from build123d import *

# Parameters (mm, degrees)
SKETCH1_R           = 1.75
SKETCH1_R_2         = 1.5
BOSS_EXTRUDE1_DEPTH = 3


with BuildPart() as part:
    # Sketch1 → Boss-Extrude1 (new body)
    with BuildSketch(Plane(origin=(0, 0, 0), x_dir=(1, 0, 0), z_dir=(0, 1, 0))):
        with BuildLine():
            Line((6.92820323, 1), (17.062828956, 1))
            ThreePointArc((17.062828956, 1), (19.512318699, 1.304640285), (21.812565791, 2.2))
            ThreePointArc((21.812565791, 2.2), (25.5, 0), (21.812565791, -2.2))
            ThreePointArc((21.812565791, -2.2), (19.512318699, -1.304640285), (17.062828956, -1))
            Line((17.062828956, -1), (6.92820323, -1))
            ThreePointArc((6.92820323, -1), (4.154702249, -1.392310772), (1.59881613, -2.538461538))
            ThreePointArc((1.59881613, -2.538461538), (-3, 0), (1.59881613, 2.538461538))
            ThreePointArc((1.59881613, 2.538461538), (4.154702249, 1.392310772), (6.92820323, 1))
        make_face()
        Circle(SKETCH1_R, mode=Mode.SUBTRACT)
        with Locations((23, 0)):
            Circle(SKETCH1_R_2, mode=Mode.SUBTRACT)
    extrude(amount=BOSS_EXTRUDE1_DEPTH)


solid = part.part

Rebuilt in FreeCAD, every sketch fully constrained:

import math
import FreeCAD as App
import Part
import Sketcher

doc = App.newDocument("Part")
body = doc.addObject("PartDesign::Body", "Body")

# Sketch on XZ plane
sketch1 = body.newObject("Sketcher::SketchObject", "Sketch")
sketch1.AttachmentSupport = (doc.getObject("XZ_Plane"), [""])
sketch1.MapMode = "FlatFace"
sketch1.addGeometry([
    Part.LineSegment(App.Vector(17.1, -1, 0), App.Vector(6.9, -1, 0)),  # 0
    Part.ArcOfCircle(Part.Circle(App.Vector(6.9, -11, 0), App.Vector(0, 0, 1), 10), math.radians(90), math.radians(122)),  # 1
    Part.ArcOfCircle(Part.Circle(App.Vector(0, 0, 0), App.Vector(0, 0, 1), 3), math.radians(58), math.radians(302)),  # 2
    Part.ArcOfCircle(Part.Circle(App.Vector(6.9, 11, 0), App.Vector(0, 0, 1), 10), math.radians(-122), math.radians(-90)),  # 3
    Part.LineSegment(App.Vector(6.9, 1, 0), App.Vector(17.1, 1, 0)),  # 4
    Part.ArcOfCircle(Part.Circle(App.Vector(17.1, 11, 0), App.Vector(0, 0, 1), 10), math.radians(-90), math.radians(-62)),  # 5
    Part.ArcOfCircle(Part.Circle(App.Vector(23, 0, 0), App.Vector(0, 0, 1), 2.5), math.radians(-118), math.radians(118)),  # 6
    Part.ArcOfCircle(Part.Circle(App.Vector(17.1, -11, 0), App.Vector(0, 0, 1), 10), math.radians(62), math.radians(90)),  # 7
    Part.Circle(App.Vector(23, 0, 0), App.Vector(0, 0, 1), 1.5),  # 8
    Part.Circle(App.Vector(0, 0, 0), App.Vector(0, 0, 1), 1.8),  # 9
], False)
sketch1.addConstraint([
    Sketcher.Constraint("Tangent", 0, 2, 1, 1),
    Sketcher.Constraint("Tangent", 1, 2, 2, 2),
    Sketcher.Constraint("Tangent", 2, 1, 3, 1),
    Sketcher.Constraint("Tangent", 3, 2, 4, 1),
    Sketcher.Constraint("Tangent", 4, 2, 5, 1),
    Sketcher.Constraint("Tangent", 5, 2, 6, 2),
    Sketcher.Constraint("Tangent", 6, 1, 7, 1),
    Sketcher.Constraint("Tangent", 7, 2, 0, 1),
    Sketcher.Constraint("Horizontal", 0),
    Sketcher.Constraint("Horizontal", 4),
    Sketcher.Constraint("Coincident", 2, 3, -1, 1),
    Sketcher.Constraint("Coincident", 9, 3, -1, 1),
    Sketcher.Constraint("Coincident", 8, 3, 6, 3),
    Sketcher.Constraint("Equal", 1, 3),
    Sketcher.Constraint("Equal", 3, 5),
    Sketcher.Constraint("Equal", 5, 7),
    Sketcher.Constraint("Symmetric", 5, 3, 7, 3, -1),
    Sketcher.Constraint("Diameter", 8, 3.0),
    Sketcher.Constraint("Radius", 1, 10.0),
    Sketcher.Constraint("Radius", 2, 3.0),
    Sketcher.Constraint("Diameter", 9, 3.5),
    Sketcher.Constraint("Radius", 6, 2.5),
    Sketcher.Constraint("DistanceY", 1, 3, -1, 1, 11.0),
    Sketcher.Constraint("DistanceX", -1, 1, 6, 3, 23.0),
])
pad1 = body.newObject("PartDesign::Pad", "Pad")
pad1.Profile = sketch1
pad1.Length = 3
pad1.Reversed = True

doc.recompute()
